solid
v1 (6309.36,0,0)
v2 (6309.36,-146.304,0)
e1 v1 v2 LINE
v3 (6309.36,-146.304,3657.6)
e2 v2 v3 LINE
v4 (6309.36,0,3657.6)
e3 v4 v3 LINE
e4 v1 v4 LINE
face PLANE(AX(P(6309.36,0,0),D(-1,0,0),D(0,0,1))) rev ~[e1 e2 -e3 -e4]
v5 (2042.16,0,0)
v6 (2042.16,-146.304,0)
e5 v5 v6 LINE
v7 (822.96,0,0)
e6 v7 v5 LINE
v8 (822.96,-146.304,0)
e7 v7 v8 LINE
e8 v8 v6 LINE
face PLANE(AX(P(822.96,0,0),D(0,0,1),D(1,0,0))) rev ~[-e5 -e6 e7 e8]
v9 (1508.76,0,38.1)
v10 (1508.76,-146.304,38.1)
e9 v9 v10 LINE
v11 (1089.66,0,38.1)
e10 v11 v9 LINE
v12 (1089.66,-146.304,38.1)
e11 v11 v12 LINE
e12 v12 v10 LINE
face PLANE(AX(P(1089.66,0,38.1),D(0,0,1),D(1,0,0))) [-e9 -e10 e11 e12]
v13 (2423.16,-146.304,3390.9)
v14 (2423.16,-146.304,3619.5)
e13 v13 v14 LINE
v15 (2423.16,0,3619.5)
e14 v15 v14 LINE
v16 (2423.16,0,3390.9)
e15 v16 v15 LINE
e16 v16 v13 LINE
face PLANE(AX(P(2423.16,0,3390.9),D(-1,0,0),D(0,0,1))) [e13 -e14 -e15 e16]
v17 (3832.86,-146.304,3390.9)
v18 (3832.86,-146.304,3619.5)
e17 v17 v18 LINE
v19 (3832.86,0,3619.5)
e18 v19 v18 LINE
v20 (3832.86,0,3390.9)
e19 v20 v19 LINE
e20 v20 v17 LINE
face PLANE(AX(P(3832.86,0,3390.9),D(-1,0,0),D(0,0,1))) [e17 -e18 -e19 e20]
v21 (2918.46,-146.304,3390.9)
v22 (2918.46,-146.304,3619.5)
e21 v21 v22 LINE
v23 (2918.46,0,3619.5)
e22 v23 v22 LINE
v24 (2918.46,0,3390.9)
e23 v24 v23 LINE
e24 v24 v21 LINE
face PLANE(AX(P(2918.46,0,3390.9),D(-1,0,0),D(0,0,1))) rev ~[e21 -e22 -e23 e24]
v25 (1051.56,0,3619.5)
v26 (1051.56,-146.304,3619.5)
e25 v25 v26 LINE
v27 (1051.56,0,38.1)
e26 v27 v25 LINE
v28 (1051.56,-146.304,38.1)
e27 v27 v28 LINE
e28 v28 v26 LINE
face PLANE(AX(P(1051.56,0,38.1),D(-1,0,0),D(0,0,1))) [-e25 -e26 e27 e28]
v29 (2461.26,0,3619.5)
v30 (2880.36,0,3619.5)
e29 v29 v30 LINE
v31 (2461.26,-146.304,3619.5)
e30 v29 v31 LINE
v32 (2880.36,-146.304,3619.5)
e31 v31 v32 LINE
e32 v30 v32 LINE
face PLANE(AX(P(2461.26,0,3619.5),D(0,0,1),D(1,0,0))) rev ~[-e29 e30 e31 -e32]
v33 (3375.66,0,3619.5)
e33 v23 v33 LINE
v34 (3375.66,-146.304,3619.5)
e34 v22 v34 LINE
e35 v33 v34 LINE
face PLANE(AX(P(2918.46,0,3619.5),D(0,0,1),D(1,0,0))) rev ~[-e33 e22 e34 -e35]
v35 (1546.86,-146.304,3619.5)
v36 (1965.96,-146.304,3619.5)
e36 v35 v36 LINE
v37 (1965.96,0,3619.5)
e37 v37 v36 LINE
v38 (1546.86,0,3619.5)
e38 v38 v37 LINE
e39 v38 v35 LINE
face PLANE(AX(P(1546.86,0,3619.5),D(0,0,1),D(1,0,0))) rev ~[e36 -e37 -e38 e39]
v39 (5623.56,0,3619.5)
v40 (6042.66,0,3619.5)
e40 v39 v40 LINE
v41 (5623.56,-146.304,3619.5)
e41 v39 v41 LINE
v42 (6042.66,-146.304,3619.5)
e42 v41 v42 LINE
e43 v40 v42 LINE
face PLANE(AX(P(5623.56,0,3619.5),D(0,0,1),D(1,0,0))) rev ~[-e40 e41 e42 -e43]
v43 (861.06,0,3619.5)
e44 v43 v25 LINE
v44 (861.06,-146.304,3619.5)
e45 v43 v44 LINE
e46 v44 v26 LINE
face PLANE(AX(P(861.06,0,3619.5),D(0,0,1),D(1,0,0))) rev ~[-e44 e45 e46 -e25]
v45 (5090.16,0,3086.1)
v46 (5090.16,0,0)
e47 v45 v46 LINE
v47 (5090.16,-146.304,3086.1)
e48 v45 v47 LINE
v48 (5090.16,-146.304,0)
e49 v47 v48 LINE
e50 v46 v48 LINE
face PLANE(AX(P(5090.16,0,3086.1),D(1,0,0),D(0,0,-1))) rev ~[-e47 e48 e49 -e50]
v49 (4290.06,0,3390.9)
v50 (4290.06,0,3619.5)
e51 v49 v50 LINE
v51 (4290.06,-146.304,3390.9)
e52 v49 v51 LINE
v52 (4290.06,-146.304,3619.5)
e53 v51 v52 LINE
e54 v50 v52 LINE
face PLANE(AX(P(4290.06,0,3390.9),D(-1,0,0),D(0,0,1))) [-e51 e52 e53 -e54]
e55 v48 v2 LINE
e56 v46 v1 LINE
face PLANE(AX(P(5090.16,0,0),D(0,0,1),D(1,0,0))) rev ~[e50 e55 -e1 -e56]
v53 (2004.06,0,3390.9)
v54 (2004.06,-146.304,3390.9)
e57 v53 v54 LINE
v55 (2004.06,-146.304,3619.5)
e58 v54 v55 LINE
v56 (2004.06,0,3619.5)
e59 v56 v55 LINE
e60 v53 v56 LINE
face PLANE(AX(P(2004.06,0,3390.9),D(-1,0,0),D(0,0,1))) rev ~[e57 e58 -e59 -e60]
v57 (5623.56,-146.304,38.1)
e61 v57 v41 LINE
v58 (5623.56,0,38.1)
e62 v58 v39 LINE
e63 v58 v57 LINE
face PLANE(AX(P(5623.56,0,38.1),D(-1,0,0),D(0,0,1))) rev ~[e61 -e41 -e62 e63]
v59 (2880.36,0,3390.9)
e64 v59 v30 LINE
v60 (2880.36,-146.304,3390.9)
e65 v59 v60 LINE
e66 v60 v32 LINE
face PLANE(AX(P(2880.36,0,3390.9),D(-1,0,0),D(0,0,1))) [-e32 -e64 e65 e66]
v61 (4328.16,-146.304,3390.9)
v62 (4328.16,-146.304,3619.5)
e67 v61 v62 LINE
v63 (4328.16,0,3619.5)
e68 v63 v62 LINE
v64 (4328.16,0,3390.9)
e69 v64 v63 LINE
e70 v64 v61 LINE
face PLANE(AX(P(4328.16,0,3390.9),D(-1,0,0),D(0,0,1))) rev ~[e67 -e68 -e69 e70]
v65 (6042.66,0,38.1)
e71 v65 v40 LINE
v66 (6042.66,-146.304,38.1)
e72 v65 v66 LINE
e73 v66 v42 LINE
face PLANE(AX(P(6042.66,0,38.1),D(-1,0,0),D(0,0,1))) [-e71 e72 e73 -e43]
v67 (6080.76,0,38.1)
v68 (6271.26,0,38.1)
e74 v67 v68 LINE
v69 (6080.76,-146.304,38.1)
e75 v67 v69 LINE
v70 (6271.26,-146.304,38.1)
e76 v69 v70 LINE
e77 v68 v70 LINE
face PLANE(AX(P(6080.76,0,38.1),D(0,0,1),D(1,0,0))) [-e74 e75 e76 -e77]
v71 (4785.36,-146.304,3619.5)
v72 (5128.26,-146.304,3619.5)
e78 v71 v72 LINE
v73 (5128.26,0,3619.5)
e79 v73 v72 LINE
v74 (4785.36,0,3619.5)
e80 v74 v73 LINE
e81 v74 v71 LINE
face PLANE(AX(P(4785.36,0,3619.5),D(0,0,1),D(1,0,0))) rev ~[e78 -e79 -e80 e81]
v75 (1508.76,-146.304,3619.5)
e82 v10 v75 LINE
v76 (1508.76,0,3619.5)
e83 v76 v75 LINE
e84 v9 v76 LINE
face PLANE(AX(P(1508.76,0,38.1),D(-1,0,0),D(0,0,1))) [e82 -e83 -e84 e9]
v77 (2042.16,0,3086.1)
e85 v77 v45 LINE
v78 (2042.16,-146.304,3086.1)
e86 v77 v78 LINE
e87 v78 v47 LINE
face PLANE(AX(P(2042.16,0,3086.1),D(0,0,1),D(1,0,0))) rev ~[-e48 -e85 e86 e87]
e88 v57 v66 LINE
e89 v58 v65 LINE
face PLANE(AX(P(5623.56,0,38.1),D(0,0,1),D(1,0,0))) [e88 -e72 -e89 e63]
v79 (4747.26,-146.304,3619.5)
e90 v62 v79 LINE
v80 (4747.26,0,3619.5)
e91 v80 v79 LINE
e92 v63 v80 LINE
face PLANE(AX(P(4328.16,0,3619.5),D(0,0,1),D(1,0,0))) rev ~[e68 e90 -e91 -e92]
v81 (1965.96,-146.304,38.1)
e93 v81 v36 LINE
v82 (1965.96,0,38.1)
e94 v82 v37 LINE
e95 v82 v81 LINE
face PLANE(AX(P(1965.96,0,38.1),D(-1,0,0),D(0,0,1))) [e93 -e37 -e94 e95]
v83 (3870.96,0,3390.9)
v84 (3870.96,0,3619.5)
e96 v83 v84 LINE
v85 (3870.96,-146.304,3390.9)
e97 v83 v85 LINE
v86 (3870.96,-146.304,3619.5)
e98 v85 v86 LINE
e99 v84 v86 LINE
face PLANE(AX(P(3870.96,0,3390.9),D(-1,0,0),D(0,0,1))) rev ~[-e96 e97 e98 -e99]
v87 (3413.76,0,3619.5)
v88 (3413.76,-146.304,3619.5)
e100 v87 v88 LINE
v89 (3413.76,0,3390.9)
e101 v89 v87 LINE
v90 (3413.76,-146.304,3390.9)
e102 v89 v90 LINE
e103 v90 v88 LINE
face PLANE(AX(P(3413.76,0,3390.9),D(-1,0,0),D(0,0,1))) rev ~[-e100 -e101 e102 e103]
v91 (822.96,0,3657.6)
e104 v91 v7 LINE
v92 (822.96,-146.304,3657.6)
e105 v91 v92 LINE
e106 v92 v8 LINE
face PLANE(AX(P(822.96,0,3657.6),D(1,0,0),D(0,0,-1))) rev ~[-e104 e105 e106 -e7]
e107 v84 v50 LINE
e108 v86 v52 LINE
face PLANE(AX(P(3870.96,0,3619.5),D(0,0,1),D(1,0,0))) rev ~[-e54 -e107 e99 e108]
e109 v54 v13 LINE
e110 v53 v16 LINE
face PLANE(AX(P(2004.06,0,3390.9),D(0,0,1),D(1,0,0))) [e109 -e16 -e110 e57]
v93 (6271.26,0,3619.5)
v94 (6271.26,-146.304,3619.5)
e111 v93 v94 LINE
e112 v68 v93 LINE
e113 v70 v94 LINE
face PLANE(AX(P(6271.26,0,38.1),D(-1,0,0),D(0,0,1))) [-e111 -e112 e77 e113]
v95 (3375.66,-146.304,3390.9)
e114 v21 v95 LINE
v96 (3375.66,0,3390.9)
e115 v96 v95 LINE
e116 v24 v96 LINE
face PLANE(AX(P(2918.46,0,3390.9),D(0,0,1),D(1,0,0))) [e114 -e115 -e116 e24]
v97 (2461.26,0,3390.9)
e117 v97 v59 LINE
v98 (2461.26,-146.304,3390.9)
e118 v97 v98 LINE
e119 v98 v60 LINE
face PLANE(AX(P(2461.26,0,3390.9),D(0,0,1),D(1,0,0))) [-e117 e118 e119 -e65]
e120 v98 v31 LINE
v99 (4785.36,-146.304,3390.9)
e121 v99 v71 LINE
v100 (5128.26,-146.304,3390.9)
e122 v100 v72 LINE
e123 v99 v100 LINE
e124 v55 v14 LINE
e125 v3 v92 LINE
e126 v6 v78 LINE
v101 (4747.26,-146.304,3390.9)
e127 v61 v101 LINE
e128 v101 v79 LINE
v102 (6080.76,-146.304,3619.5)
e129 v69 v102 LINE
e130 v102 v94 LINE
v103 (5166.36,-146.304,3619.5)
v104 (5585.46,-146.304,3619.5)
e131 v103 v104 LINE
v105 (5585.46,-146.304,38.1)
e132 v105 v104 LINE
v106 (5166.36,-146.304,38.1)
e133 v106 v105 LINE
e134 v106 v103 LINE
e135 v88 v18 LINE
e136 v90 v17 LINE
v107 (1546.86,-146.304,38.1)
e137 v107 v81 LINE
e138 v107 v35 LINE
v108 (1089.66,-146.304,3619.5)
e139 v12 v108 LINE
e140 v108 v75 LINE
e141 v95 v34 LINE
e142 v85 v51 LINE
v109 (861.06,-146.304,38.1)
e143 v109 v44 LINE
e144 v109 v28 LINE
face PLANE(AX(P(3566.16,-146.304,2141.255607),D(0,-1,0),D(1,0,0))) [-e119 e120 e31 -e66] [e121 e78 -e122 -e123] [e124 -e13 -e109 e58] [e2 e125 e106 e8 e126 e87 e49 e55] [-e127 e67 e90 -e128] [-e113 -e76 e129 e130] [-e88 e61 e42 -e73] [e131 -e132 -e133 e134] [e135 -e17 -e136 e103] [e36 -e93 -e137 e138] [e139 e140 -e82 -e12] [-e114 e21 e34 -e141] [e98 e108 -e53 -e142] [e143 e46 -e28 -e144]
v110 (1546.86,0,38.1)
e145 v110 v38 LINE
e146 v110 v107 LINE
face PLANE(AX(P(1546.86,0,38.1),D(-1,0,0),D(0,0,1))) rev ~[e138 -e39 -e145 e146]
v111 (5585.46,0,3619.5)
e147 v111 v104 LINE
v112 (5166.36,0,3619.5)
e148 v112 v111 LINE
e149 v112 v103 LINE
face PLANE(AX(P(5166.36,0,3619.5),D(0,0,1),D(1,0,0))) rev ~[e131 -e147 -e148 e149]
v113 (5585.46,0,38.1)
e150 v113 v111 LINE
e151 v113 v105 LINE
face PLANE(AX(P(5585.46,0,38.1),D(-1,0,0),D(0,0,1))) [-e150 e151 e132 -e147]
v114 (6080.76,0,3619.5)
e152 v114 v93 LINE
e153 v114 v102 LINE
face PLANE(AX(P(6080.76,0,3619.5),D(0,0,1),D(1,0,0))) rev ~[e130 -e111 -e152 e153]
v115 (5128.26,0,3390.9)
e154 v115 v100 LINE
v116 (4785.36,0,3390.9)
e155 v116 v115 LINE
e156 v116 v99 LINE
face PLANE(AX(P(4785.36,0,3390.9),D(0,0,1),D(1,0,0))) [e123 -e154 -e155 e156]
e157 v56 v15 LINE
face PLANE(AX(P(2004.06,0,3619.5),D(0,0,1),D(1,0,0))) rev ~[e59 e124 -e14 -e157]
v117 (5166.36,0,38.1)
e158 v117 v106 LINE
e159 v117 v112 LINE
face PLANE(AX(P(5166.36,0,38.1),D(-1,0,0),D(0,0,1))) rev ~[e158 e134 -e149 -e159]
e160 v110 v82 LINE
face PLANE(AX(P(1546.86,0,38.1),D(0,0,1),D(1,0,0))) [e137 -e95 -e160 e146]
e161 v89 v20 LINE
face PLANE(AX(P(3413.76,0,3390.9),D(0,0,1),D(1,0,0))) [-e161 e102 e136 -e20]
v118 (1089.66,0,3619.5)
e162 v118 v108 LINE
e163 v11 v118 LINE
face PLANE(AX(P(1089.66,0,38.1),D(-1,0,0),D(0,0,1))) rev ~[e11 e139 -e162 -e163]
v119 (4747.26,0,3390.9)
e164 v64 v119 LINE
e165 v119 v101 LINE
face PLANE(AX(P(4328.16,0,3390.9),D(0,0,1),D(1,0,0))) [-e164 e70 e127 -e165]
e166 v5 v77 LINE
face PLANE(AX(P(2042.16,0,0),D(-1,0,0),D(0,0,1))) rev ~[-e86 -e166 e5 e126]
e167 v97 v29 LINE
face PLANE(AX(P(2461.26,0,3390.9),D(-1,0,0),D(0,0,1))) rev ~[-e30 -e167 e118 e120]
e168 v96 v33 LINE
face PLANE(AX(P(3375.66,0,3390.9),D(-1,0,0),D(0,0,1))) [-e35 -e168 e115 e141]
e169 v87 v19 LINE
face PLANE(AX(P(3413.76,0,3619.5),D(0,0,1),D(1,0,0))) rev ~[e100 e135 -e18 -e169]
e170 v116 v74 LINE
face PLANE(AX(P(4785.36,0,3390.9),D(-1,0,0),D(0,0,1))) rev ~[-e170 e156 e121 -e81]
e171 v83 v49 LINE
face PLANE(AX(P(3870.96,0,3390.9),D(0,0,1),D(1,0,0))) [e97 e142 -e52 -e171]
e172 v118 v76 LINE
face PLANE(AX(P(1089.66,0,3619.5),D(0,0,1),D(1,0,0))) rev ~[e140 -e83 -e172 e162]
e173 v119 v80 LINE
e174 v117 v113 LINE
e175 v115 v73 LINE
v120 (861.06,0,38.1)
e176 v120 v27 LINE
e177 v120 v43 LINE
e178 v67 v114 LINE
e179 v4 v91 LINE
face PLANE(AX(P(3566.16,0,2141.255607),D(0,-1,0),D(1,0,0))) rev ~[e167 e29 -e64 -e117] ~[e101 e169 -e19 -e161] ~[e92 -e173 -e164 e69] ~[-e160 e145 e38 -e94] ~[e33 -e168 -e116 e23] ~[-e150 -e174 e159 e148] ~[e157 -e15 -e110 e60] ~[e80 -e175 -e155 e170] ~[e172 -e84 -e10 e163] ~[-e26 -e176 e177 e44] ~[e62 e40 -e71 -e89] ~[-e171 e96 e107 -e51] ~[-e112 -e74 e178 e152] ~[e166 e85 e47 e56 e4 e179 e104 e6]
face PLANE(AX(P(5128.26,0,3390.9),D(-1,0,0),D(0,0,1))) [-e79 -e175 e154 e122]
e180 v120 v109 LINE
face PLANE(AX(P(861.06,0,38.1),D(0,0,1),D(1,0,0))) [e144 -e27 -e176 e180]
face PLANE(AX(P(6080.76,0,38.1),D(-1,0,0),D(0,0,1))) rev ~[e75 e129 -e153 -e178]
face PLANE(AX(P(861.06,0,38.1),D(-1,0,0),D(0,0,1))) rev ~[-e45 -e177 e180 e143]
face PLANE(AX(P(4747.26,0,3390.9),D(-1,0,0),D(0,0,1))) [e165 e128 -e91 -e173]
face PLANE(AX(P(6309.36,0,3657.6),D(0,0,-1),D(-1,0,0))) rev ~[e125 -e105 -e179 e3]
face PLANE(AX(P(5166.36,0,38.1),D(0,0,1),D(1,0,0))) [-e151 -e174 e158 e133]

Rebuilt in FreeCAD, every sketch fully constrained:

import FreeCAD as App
import Part
import Sketcher

V = App.Vector
Q = App.Units.Quantity


def add_polygon(sketch, points):
    """Adds a closed chain of lines whose ends are joined by coincident constraints."""
    first, n = sketch.GeometryCount, len(points)
    for a, b in zip(points, points[1:] + points[:1]):
        sketch.addGeometry(Part.LineSegment(App.Vector(*a, 0), App.Vector(*b, 0)), False)
    for i in range(n):
        sketch.addConstraint(Sketcher.Constraint("Coincident", first + i, 2, first + (i + 1) % n, 1))

doc = App.newDocument("Part")
body = doc.addObject("PartDesign::Body", "Body")

# Sketch on XZ plane
sketch1 = body.newObject("Sketcher::SketchObject", "Sketch")
sketch1.AttachmentSupport = (doc.getObject("XZ_Plane"), [""])
sketch1.MapMode = "FlatFace"
add_polygon(sketch1, [(822.96, 0), (2042.16, 0), (2042.16, 3086.1), (5090.16, 3086.1), (5090.16, 0), (6309.36, 0), (6309.36, 3657.6), (822.96, 3657.6)])  # lines 0-7
add_polygon(sketch1, [(1051.56, 38.1), (861.06, 38.1), (861.06, 3619.5), (1051.56, 3619.5)])  # lines 8-11
add_polygon(sketch1, [(1508.76, 38.1), (1089.66, 38.1), (1089.66, 3619.5), (1508.76, 3619.5)])  # lines 12-15
add_polygon(sketch1, [(1965.96, 38.1), (1546.86, 38.1), (1546.86, 3619.5), (1965.96, 3619.5)])  # lines 16-19
add_polygon(sketch1, [(2423.16, 3390.9), (2004.06, 3390.9), (2004.06, 3619.5), (2423.16, 3619.5)])  # lines 20-23
add_polygon(sketch1, [(2880.36, 3390.9), (2461.26, 3390.9), (2461.26, 3619.5), (2880.36, 3619.5)])  # lines 24-27
add_polygon(sketch1, [(3375.66, 3390.9), (2918.46, 3390.9), (2918.46, 3619.5), (3375.66, 3619.5)])  # lines 28-31
add_polygon(sketch1, [(5585.46, 38.1), (5166.36, 38.1), (5166.36, 3619.5), (5585.46, 3619.5)])  # lines 32-35
add_polygon(sketch1, [(6042.66, 38.1), (5623.56, 38.1), (5623.56, 3619.5), (6042.66, 3619.5)])  # lines 36-39
add_polygon(sketch1, [(6271.26, 38.1), (6080.76, 38.1), (6080.76, 3619.5), (6271.26, 3619.5)])  # lines 40-43
add_polygon(sketch1, [(3832.86, 3390.9), (3413.76, 3390.9), (3413.76, 3619.5), (3832.86, 3619.5)])  # lines 44-47
add_polygon(sketch1, [(4290.06, 3390.9), (3870.96, 3390.9), (3870.96, 3619.5), (4290.06, 3619.5)])  # lines 48-51
add_polygon(sketch1, [(4747.26, 3390.9), (4328.16, 3390.9), (4328.16, 3619.5), (4747.26, 3619.5)])  # lines 52-55
add_polygon(sketch1, [(5128.26, 3390.9), (4785.36, 3390.9), (4785.36, 3619.5), (5128.26, 3619.5)])  # lines 56-59
sketch1.addConstraint([
    Sketcher.Constraint("Horizontal", 0),
    Sketcher.Constraint("Vertical", 1),
    Sketcher.Constraint("Horizontal", 2),
    Sketcher.Constraint("Vertical", 3),
    Sketcher.Constraint("Horizontal", 4),
    Sketcher.Constraint("Vertical", 5),
    Sketcher.Constraint("Horizontal", 6),
    Sketcher.Constraint("Vertical", 7),
    Sketcher.Constraint("Horizontal", 8),
    Sketcher.Constraint("Vertical", 9),
    Sketcher.Constraint("Horizontal", 10),
    Sketcher.Constraint("Vertical", 11),
    Sketcher.Constraint("Horizontal", 12),
    Sketcher.Constraint("Vertical", 13),
    Sketcher.Constraint("Horizontal", 14),
    Sketcher.Constraint("Vertical", 15),
    Sketcher.Constraint("Horizontal", 16),
    Sketcher.Constraint("Vertical", 17),
    Sketcher.Constraint("Horizontal", 18),
    Sketcher.Constraint("Vertical", 19),
    Sketcher.Constraint("Horizontal", 20),
    Sketcher.Constraint("Vertical", 21),
    Sketcher.Constraint("Horizontal", 22),
    Sketcher.Constraint("Vertical", 23),
    Sketcher.Constraint("Horizontal", 24),
    Sketcher.Constraint("Vertical", 25),
    Sketcher.Constraint("Horizontal", 26),
    Sketcher.Constraint("Vertical", 27),
    Sketcher.Constraint("Horizontal", 28),
    Sketcher.Constraint("Vertical", 29),
    Sketcher.Constraint("Horizontal", 30),
    Sketcher.Constraint("Vertical", 31),
    Sketcher.Constraint("Horizontal", 32),
    Sketcher.Constraint("Vertical", 33),
    Sketcher.Constraint("Horizontal", 34),
    Sketcher.Constraint("Vertical", 35),
    Sketcher.Constraint("Horizontal", 36),
    Sketcher.Constraint("Vertical", 37),
    Sketcher.Constraint("Horizontal", 38),
    Sketcher.Constraint("Vertical", 39),
    Sketcher.Constraint("Horizontal", 40),
    Sketcher.Constraint("Vertical", 41),
    Sketcher.Constraint("Horizontal", 42),
    Sketcher.Constraint("Vertical", 43),
    Sketcher.Constraint("Horizontal", 44),
    Sketcher.Constraint("Vertical", 45),
    Sketcher.Constraint("Horizontal", 46),
    Sketcher.Constraint("Vertical", 47),
    Sketcher.Constraint("Horizontal", 48),
    Sketcher.Constraint("Vertical", 49),
    Sketcher.Constraint("Horizontal", 50),
    Sketcher.Constraint("Vertical", 51),
    Sketcher.Constraint("Horizontal", 52),
    Sketcher.Constraint("Vertical", 53),
    Sketcher.Constraint("Horizontal", 54),
    Sketcher.Constraint("Vertical", 55),
    Sketcher.Constraint("Horizontal", 56),
    Sketcher.Constraint("Vertical", 57),
    Sketcher.Constraint("Horizontal", 58),
    Sketcher.Constraint("Vertical", 59),
    Sketcher.Constraint("PointOnObject", 0, 2, -1),
    Sketcher.Constraint("PointOnObject", 3, 2, -1),
    Sketcher.Constraint("Horizontal", 11, 2, 12, 2),
    Sketcher.Constraint("Horizontal", 10, 2, 13, 2),
    Sketcher.Constraint("Horizontal", 15, 2, 16, 2),
    Sketcher.Constraint("Horizontal", 14, 2, 17, 2),
    Sketcher.Constraint("Horizontal", 18, 2, 21, 2),
    Sketcher.Constraint("Horizontal", 23, 2, 24, 2),
    Sketcher.Constraint("Horizontal", 22, 2, 25, 2),
    Sketcher.Constraint("Horizontal", 27, 2, 28, 2),
    Sketcher.Constraint("Horizontal", 26, 2, 29, 2),
    Sketcher.Constraint("Horizontal", 19, 2, 32, 2),
    Sketcher.Constraint("Horizontal", 30, 2, 33, 2),
    Sketcher.Constraint("Horizontal", 35, 2, 36, 2),
    Sketcher.Constraint("Horizontal", 34, 2, 37, 2),
    Sketcher.Constraint("Horizontal", 39, 2, 40, 2),
    Sketcher.Constraint("Horizontal", 38, 2, 41, 2),
    Sketcher.Constraint("Horizontal", 31, 2, 44, 2),
    Sketcher.Constraint("Horizontal", 42, 2, 45, 2),
    Sketcher.Constraint("Horizontal", 47, 2, 48, 2),
    Sketcher.Constraint("Horizontal", 46, 2, 49, 2),
    Sketcher.Constraint("Horizontal", 51, 2, 52, 2),
    Sketcher.Constraint("Horizontal", 50, 2, 53, 2),
    Sketcher.Constraint("Horizontal", 55, 2, 56, 2),
    Sketcher.Constraint("Horizontal", 54, 2, 57, 2),
    Sketcher.Constraint("Equal", 0, 4),
    Sketcher.Constraint("Equal", 14, 16),
    Sketcher.Constraint("Equal", 18, 20),
    Sketcher.Constraint("Equal", 22, 24),
    Sketcher.Constraint("Equal", 26, 32),
    Sketcher.Constraint("Equal", 34, 36),
    Sketcher.Constraint("Equal", 10, 40),
    Sketcher.Constraint("Equal", 38, 44),
    Sketcher.Constraint("Equal", 46, 48),
    Sketcher.Constraint("Equal", 50, 52),
    Sketcher.Constraint("DistanceX", 0, 1, 0, 2, Q("48 in")),
    Sketcher.Constraint("DistanceX", 2, 1, 2, 2, Q("120 in")),
    Sketcher.Constraint("DistanceX", 28, 2, 28, 1, Q("18 in")),
    Sketcher.Constraint("DistanceY", 5, 1, 5, 2, Q("144 in")),
    Sketcher.Constraint("DistanceY", 9, 1, 9, 2, Q("141 in")),
    Sketcher.Constraint("DistanceY", 21, 1, 21, 2, Q("9 in")),
    Sketcher.Constraint("DistanceX", 8, 2, 8, 1, Q("7.5 in")),
    Sketcher.Constraint("DistanceX", 12, 2, 12, 1, Q("16.5 in")),
    Sketcher.Constraint("DistanceX", 56, 2, 56, 1, Q("13.5 in")),
    Sketcher.Constraint("DistanceY", 1, 1, 1, 2, Q("121.5 in")),
    Sketcher.Constraint("DistanceY", 8, 2, 1, 2, Q("120 in")),
    Sketcher.Constraint("DistanceX", 6, 2, 10, 2, Q("9 in")),
    Sketcher.Constraint("DistanceX", 8, 2, 12, 2, Q("9 in")),
    Sketcher.Constraint("DistanceX", 12, 2, 16, 2, Q("18 in")),
    Sketcher.Constraint("DistanceX", 17, 2, 20, 2, Q("18 in")),
    Sketcher.Constraint("DistanceX", 20, 2, 24, 2, Q("18 in")),
    Sketcher.Constraint("DistanceX", 24, 2, 28, 2, Q("18 in")),
    Sketcher.Constraint("DistanceX", 3, 2, 32, 2, Q("3 in")),
    Sketcher.Constraint("DistanceX", 32, 2, 36, 2, Q("18 in")),
    Sketcher.Constraint("DistanceX", 40, 2, 4, 2, Q("9 in")),
    Sketcher.Constraint("DistanceX", 27, 2, 44, 2, Q("21 in")),
    Sketcher.Constraint("DistanceX", 44, 2, 48, 2, Q("18 in")),
    Sketcher.Constraint("DistanceX", 48, 2, 52, 2, Q("18 in")),
    Sketcher.Constraint("DistanceX", 56, 2, 2, 2, Q("12 in")),
    Sketcher.Constraint("DistanceX", -1, 1, 0, 2, Q("80.4 in")),
])
pad1 = body.newObject("PartDesign::Pad", "Pad")
pad1.Profile = sketch1
pad1.Length = Q("5.76 in")

doc.recompute()
